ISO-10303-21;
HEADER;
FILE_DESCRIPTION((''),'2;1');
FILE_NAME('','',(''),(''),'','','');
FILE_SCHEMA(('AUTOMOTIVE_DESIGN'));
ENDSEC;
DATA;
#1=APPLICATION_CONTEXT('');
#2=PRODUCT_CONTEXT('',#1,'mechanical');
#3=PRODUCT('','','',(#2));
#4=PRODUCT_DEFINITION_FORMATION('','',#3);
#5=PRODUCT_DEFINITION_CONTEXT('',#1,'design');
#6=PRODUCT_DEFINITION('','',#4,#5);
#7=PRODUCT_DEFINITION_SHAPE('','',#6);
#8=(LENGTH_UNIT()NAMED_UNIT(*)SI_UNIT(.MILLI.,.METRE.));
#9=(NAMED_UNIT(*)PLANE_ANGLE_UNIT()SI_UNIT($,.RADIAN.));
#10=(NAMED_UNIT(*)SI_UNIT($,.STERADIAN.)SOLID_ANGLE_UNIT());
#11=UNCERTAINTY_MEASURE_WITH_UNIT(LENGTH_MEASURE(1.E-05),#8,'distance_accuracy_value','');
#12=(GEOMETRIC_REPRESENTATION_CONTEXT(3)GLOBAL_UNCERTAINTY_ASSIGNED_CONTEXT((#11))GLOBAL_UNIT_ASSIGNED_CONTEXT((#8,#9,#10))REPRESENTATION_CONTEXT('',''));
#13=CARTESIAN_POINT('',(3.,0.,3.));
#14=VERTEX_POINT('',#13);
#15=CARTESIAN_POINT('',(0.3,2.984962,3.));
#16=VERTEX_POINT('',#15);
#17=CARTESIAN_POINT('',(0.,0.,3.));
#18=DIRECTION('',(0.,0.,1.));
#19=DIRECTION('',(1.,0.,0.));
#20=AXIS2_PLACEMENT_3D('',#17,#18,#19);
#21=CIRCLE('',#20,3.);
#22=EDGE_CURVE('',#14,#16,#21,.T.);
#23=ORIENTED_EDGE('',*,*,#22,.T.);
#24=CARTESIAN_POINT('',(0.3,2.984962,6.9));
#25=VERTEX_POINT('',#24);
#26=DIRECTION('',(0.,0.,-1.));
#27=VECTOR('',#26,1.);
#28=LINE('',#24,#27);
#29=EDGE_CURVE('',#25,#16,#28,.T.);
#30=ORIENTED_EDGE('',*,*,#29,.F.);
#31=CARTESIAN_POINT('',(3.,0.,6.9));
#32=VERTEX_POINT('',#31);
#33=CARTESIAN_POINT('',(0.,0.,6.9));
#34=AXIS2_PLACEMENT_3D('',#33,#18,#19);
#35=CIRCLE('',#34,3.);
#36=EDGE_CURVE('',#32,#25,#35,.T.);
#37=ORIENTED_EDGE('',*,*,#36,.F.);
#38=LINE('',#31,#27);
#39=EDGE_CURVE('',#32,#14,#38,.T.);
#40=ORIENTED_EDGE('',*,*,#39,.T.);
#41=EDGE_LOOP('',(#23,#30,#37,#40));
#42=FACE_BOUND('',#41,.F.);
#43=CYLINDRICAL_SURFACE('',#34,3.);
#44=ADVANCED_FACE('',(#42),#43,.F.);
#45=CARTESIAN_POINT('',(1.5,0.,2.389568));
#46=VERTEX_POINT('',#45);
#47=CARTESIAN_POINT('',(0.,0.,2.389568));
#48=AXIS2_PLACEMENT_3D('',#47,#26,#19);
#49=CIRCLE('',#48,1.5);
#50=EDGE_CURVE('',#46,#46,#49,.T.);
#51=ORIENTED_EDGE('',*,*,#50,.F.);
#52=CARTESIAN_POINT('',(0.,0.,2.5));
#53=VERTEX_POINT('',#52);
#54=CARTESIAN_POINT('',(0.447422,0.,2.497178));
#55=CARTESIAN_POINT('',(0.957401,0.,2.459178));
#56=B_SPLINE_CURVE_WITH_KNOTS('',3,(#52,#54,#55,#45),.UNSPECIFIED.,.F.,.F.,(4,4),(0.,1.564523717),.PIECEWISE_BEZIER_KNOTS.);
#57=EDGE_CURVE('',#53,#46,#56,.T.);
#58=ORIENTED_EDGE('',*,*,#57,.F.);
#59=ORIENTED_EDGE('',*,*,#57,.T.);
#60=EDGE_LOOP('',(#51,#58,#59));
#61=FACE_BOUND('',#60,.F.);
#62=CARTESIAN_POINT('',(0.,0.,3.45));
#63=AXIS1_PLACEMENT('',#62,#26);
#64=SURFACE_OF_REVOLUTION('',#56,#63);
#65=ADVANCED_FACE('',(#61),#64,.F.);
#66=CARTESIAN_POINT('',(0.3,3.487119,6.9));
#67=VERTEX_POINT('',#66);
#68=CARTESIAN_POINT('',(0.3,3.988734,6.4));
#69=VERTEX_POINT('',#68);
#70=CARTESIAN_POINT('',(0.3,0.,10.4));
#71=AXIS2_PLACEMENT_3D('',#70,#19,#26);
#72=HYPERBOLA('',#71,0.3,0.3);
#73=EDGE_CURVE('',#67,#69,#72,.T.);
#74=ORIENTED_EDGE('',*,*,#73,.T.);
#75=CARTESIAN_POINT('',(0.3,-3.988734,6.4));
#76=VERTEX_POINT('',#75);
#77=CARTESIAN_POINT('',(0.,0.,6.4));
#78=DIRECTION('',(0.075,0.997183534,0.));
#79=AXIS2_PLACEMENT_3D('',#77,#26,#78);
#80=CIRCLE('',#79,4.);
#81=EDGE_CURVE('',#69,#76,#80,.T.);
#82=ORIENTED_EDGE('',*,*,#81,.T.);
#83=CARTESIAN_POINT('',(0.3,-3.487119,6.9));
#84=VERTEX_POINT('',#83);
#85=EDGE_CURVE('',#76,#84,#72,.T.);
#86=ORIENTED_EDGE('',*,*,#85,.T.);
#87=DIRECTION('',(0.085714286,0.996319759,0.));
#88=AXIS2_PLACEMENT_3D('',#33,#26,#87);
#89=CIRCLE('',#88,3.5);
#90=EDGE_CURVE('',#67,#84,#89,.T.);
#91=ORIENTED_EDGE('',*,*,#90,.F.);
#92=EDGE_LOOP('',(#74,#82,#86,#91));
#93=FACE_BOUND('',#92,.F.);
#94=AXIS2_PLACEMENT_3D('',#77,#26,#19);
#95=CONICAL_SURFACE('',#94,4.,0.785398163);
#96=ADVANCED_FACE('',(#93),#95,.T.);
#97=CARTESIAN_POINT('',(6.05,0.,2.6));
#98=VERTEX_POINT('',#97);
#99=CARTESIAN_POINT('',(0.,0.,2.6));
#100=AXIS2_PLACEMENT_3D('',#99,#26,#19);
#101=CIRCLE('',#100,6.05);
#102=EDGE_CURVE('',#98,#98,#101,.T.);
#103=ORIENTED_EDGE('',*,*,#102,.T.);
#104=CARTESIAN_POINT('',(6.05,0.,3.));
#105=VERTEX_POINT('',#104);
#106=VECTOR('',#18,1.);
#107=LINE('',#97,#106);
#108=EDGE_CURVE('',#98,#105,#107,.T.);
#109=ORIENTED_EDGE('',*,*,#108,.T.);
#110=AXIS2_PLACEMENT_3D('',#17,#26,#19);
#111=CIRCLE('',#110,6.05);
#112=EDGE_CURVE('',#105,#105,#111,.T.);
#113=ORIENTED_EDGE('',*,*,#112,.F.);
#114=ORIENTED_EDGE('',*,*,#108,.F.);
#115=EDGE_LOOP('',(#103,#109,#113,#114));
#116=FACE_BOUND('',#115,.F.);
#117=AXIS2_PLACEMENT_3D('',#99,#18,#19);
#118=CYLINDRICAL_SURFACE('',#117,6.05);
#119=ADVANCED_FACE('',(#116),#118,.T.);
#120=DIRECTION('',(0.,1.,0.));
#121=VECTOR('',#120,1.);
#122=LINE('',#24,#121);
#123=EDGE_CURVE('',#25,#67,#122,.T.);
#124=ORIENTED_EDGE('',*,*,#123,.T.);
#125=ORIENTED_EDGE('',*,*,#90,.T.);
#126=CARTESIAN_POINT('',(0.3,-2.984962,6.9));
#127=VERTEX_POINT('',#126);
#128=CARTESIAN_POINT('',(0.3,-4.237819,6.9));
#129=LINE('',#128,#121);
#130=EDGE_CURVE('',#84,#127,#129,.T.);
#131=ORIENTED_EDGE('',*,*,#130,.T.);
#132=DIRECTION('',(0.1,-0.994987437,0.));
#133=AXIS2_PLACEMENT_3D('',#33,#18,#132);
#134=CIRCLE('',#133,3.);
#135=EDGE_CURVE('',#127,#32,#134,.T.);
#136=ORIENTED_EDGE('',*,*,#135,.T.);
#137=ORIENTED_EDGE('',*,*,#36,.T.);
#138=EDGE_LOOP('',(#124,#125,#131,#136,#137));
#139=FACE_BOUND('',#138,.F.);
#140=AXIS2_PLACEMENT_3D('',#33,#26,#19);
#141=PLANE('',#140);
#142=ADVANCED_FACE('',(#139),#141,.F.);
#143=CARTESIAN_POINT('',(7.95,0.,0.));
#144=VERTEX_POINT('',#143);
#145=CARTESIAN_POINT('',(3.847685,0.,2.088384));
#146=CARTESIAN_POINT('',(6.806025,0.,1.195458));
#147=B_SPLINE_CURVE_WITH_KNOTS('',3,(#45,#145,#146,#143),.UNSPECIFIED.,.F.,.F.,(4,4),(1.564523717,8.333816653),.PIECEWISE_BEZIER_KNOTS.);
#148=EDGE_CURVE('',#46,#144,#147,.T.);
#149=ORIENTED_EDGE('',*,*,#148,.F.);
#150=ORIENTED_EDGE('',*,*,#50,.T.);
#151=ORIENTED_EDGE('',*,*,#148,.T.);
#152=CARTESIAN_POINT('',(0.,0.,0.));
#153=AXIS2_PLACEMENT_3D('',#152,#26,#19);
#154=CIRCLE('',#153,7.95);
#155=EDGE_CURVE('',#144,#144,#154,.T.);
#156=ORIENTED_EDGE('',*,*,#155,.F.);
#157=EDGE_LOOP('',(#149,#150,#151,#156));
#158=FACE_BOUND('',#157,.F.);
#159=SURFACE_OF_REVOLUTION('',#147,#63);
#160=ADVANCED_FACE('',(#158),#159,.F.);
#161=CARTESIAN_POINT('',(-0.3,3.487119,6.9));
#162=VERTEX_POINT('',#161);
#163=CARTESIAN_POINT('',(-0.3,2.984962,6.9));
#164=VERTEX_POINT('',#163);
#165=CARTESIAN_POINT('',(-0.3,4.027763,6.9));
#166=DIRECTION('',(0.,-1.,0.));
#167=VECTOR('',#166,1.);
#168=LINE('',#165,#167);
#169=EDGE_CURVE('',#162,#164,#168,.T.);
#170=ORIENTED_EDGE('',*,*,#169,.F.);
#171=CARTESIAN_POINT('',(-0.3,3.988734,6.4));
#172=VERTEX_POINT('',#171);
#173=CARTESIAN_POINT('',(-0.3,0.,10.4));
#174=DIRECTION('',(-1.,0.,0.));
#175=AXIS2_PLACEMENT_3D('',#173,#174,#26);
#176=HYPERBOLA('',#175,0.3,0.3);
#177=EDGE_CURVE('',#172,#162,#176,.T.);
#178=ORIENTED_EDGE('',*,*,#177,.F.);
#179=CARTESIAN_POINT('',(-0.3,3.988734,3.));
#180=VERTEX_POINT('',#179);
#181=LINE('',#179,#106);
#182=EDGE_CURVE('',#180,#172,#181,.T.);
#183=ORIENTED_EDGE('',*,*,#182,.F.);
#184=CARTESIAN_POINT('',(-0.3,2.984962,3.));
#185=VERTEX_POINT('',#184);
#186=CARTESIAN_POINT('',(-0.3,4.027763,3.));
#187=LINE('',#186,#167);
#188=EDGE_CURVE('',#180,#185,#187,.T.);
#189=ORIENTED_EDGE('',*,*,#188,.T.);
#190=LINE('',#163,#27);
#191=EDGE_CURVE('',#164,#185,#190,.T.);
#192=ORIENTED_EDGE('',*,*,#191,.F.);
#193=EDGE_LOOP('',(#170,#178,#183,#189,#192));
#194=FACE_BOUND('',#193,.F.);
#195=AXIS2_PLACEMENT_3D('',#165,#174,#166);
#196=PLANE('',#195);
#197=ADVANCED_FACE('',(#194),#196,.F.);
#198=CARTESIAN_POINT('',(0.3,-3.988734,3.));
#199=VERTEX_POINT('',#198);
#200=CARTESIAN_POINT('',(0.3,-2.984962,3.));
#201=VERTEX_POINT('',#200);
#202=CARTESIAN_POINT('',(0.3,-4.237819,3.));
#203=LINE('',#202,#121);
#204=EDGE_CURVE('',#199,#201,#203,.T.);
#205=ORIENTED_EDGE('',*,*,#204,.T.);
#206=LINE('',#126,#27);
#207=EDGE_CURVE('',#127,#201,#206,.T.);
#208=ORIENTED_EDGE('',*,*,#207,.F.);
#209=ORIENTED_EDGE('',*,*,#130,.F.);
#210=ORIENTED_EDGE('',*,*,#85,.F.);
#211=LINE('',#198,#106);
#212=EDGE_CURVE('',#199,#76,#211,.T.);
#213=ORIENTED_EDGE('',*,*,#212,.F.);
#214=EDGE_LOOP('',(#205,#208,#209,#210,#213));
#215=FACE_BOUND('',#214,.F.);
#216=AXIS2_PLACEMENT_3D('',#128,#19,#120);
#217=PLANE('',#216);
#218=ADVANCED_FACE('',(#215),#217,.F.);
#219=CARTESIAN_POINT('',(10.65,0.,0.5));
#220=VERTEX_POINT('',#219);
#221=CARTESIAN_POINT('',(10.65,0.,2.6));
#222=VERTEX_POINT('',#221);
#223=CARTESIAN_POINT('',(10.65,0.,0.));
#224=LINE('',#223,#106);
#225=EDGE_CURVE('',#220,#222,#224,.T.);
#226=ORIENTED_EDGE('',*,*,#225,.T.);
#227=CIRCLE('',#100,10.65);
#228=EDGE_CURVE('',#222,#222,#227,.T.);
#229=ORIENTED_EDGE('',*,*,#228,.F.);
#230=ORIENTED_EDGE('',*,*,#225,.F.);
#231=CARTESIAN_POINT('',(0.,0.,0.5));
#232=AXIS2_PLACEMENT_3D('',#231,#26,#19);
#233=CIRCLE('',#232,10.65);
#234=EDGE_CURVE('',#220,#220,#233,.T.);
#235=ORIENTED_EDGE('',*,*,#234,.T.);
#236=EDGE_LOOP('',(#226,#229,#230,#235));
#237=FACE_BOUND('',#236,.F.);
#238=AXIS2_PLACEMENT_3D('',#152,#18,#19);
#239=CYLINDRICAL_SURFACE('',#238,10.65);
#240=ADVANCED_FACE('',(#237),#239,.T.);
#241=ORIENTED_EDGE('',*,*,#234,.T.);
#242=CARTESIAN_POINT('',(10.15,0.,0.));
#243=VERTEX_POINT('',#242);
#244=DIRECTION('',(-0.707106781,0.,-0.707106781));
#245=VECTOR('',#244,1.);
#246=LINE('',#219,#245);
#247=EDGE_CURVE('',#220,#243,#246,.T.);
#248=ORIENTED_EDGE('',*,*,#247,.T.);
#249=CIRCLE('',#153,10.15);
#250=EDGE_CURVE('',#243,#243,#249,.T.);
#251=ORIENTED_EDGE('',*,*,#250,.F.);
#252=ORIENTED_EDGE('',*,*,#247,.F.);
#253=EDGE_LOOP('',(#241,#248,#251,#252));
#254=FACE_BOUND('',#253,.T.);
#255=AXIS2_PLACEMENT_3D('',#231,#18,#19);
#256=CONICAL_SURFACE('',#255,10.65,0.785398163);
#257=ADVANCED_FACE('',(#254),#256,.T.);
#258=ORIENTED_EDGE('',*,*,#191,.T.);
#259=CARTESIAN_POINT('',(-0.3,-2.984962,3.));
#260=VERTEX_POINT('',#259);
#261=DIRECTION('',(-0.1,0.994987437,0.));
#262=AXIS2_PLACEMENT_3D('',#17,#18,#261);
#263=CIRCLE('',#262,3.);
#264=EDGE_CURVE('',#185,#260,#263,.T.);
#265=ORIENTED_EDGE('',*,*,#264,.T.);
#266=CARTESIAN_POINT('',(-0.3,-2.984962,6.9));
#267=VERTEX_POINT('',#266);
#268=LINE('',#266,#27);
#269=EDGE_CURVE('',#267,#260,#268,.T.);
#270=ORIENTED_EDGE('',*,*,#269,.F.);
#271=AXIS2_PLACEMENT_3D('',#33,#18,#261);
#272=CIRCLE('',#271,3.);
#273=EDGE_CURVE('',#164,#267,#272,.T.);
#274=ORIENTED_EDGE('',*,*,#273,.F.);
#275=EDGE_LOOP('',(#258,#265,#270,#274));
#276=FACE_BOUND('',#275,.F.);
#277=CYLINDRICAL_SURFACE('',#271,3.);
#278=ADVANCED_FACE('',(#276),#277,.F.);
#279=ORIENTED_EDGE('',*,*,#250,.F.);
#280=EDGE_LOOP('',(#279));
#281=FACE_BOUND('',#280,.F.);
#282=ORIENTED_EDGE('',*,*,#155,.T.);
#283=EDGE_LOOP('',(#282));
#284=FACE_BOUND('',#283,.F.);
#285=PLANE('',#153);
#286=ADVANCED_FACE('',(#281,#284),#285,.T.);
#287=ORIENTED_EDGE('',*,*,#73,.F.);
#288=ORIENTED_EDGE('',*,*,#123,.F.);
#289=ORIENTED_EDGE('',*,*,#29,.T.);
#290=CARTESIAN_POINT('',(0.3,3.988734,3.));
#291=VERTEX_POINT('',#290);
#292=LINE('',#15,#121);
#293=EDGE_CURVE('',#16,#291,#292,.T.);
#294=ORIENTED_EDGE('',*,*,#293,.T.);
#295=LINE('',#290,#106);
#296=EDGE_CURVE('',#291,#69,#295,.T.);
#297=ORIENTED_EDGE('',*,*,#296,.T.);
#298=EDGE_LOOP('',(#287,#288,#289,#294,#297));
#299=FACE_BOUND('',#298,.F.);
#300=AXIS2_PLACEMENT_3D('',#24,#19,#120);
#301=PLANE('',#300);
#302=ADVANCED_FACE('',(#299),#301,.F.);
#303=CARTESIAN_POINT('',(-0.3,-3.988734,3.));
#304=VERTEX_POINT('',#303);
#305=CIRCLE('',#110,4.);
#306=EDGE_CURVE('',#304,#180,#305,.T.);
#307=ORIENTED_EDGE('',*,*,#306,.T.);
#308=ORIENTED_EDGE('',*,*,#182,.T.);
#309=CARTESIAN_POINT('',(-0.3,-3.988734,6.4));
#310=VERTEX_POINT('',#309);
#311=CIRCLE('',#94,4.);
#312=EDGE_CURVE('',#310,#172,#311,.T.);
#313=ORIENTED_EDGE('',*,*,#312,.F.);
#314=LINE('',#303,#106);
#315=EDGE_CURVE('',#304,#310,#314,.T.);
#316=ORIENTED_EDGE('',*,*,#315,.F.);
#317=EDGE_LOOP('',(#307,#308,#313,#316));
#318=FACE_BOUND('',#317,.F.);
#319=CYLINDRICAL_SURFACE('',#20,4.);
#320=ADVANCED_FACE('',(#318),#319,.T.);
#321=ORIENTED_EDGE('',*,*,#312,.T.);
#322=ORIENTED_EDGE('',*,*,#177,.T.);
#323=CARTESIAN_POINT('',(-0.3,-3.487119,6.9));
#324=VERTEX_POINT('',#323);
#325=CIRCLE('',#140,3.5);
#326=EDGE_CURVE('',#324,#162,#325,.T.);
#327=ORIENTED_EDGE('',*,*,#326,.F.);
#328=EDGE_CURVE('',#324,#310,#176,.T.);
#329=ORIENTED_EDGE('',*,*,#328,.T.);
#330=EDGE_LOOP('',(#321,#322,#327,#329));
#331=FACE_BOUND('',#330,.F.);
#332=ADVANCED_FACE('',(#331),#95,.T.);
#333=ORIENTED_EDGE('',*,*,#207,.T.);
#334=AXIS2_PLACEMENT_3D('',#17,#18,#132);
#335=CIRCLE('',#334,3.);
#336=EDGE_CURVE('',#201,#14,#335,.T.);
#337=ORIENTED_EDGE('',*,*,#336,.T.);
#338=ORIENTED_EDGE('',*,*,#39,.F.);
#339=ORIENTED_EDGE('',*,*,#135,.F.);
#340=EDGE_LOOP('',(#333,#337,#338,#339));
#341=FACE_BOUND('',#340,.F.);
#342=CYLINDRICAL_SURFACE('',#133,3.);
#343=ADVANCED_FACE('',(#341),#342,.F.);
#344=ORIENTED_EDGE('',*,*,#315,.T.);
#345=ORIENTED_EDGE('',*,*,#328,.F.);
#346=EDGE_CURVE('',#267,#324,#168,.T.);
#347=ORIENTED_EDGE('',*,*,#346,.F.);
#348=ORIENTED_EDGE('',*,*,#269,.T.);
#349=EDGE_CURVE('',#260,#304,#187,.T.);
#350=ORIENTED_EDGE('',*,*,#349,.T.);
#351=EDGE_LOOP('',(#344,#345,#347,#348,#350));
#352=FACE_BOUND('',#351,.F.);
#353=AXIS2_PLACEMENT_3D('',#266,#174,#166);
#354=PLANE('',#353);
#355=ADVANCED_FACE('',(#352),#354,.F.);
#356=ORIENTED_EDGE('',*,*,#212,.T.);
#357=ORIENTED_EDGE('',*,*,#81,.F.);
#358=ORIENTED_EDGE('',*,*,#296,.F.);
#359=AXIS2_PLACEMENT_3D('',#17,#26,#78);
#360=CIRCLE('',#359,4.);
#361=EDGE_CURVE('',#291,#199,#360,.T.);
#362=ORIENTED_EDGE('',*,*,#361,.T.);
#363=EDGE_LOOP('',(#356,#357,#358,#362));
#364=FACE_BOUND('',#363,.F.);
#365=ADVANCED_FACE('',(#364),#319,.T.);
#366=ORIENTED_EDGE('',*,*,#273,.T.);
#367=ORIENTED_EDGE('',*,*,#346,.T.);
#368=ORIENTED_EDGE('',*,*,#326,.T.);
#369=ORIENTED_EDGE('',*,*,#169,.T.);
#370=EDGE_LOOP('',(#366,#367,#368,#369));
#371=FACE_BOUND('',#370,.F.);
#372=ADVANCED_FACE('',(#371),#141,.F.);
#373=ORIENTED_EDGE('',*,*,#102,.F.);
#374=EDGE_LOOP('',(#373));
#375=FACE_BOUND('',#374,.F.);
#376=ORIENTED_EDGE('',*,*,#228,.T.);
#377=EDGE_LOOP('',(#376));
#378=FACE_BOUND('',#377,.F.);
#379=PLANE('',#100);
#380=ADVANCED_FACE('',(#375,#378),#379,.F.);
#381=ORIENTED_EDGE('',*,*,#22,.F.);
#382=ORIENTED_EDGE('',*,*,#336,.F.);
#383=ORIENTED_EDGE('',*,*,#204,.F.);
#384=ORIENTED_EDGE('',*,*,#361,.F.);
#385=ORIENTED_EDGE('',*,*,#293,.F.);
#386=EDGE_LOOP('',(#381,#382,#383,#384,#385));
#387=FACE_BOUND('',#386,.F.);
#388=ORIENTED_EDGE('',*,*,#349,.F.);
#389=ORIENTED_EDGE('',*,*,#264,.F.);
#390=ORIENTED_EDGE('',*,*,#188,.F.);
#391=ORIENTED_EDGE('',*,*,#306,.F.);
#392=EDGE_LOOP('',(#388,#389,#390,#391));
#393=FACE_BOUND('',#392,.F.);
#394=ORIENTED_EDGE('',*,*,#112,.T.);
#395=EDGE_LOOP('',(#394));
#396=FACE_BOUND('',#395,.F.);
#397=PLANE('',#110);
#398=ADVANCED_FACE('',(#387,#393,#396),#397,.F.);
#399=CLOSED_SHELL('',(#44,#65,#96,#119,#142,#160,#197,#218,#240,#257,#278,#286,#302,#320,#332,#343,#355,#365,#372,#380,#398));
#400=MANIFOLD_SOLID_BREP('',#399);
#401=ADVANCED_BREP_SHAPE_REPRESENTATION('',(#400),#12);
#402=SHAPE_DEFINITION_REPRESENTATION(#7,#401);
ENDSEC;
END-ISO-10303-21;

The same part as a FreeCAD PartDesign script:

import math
import FreeCAD as App
import Part
import Sketcher


def edges_at(feature, points):
    """Names of the edges that pass closest to the given points."""
    edges = feature.Shape.Edges
    near = lambda p: min(range(len(edges)), key=lambda i: edges[i].distToShape(Part.Vertex(*p))[0])
    return sorted({f"Edge{near(p) + 1}" for p in points})

doc = App.newDocument("Part")
body = doc.addObject("PartDesign::Body", "Body")

# Sketch on XZ plane
sketch1 = body.newObject("Sketcher::SketchObject", "Sketch")
sketch1.AttachmentSupport = (doc.getObject("XZ_Plane"), [""])
sketch1.MapMode = "FlatFace"
sketch1.addGeometry([
    Part.BSplineCurve([App.Vector(1.5, 2.389568, 0), App.Vector(3.847685, 2.088384, 0), App.Vector(6.806025, 1.195458, 0), App.Vector(7.95, 0, 0)], [4, 4], [1.564523717, 8.333816653], False, 3, [1, 1, 1, 1], False),  # 0
    Part.LineSegment(App.Vector(7.95, 0, 0), App.Vector(10.65, 0, 0)),  # 1
    Part.LineSegment(App.Vector(10.65, 0, 0), App.Vector(10.65, 2.6, 0)),  # 2
    Part.LineSegment(App.Vector(10.65, 2.6, 0), App.Vector(6.05, 2.6, 0)),  # 3
    Part.LineSegment(App.Vector(6.05, 2.6, 0), App.Vector(6.05, 3, 0)),  # 4
    Part.LineSegment(App.Vector(6.05, 3, 0), App.Vector(4, 3, 0)),  # 5
    Part.LineSegment(App.Vector(4, 3, 0), App.Vector(4, 6.9, 0)),  # 6
    Part.LineSegment(App.Vector(4, 6.9, 0), App.Vector(0, 6.9, 0)),  # 7
    Part.LineSegment(App.Vector(0, 6.9, 0), App.Vector(0, 2.5, 0)),  # 8
    Part.BSplineCurve([App.Vector(0, 2.5, 0), App.Vector(0.447422, 2.497178, 0), App.Vector(0.957401, 2.459178, 0), App.Vector(1.5, 2.389568, 0)], [4, 4], [0, 1.564523717], False, 3, [1, 1, 1, 1], False),  # 9
], False)
sketch1.addConstraint([
    Sketcher.Constraint("Block", 0),
    Sketcher.Constraint("Block", 9),
    Sketcher.Constraint("Coincident", 0, 2, 1, 1),
    Sketcher.Constraint("Coincident", 1, 2, 2, 1),
    Sketcher.Constraint("Coincident", 2, 2, 3, 1),
    Sketcher.Constraint("Coincident", 3, 2, 4, 1),
    Sketcher.Constraint("Coincident", 4, 2, 5, 1),
    Sketcher.Constraint("Coincident", 5, 2, 6, 1),
    Sketcher.Constraint("Coincident", 6, 2, 7, 1),
    Sketcher.Constraint("Coincident", 7, 2, 8, 1),
    Sketcher.Constraint("Coincident", 8, 2, 9, 1),
    Sketcher.Constraint("Horizontal", 1),
    Sketcher.Constraint("Vertical", 2),
    Sketcher.Constraint("Horizontal", 3),
    Sketcher.Constraint("Vertical", 4),
    Sketcher.Constraint("Horizontal", 5),
    Sketcher.Constraint("Vertical", 6),
    Sketcher.Constraint("Horizontal", 7),
    Sketcher.Constraint("Vertical", 8),
    Sketcher.Constraint("DistanceX", 7, 2, 7, 1, 4.0),
    Sketcher.Constraint("DistanceX", 1, 1, 1, 2, 2.7),
    Sketcher.Constraint("DistanceX", 3, 2, 3, 1, 4.6),
    Sketcher.Constraint("DistanceY", 2, 1, 2, 2, 2.6),
    Sketcher.Constraint("DistanceY", 4, 1, 4, 2, 0.4),
    Sketcher.Constraint("DistanceY", 6, 1, 6, 2, 3.9),
])
revolution = body.newObject("PartDesign::Revolution", "Revolution")
revolution.Profile = sketch1
revolution.ReferenceAxis = (sketch1, ["V_Axis"])
revolution.Angle = 360
doc.recompute()

chamfer = body.newObject("PartDesign::Chamfer", "Chamfer")
chamfer.Base = (revolution, edges_at(revolution, [(-4, 0, 6.9)]))
chamfer.Size = 0.5
doc.recompute()

chamfer2 = body.newObject("PartDesign::Chamfer", "Chamfer001")
chamfer2.Base = (chamfer, edges_at(chamfer, [(-10.65, 0, 0)]))
chamfer2.Size = 0.5

# Sketch on XY plane
sketch2 = body.newObject("Sketcher::SketchObject", "Sketch001")
sketch2.AttachmentSupport = (doc.getObject("XY_Plane"), [""])
sketch2.MapMode = "FlatFace"
sketch2.AttachmentOffset = App.Placement(App.Vector(0, 0, 6.9), App.Rotation())
sketch2.addGeometry([
    Part.ArcOfCircle(Part.Circle(App.Vector(0, 0, 0), App.Vector(0, 0, 1), 3), math.radians(-84), math.radians(0)),  # 0
    Part.ArcOfCircle(Part.Circle(App.Vector(0, 0, 0), App.Vector(0, 0, 1), 3), math.radians(0), math.radians(84)),  # 1
    Part.LineSegment(App.Vector(0.3, 3, 0), App.Vector(0.3, 4, 0)),  # 2
    Part.LineSegment(App.Vector(0.3, 4, 0), App.Vector(-0.3, 4, 0)),  # 3
    Part.LineSegment(App.Vector(-0.3, 4, 0), App.Vector(-0.3, 3, 0)),  # 4
    Part.ArcOfCircle(Part.Circle(App.Vector(0, 0, 0), App.Vector(0, 0, 1), 3), math.radians(96), math.radians(264)),  # 5
    Part.LineSegment(App.Vector(-0.3, -3, 0), App.Vector(-0.3, -4.2, 0)),  # 6
    Part.LineSegment(App.Vector(-0.3, -4.2, 0), App.Vector(0.3, -4.2, 0)),  # 7
    Part.LineSegment(App.Vector(0.3, -4.2, 0), App.Vector(0.3, -3, 0)),  # 8
], False)
sketch2.addConstraint([
    Sketcher.Constraint("Tangent", 0, 2, 1, 1),
    Sketcher.Constraint("Coincident", 1, 2, 2, 1),
    Sketcher.Constraint("Coincident", 2, 2, 3, 1),
    Sketcher.Constraint("Coincident", 3, 2, 4, 1),
    Sketcher.Constraint("Coincident", 4, 2, 5, 1),
    Sketcher.Constraint("Coincident", 5, 2, 6, 1),
    Sketcher.Constraint("Coincident", 6, 2, 7, 1),
    Sketcher.Constraint("Coincident", 7, 2, 8, 1),
    Sketcher.Constraint("Coincident", 8, 2, 0, 1),
    Sketcher.Constraint("Vertical", 2),
    Sketcher.Constraint("Horizontal", 3),
    Sketcher.Constraint("Vertical", 4),
    Sketcher.Constraint("Vertical", 6),
    Sketcher.Constraint("Horizontal", 7),
    Sketcher.Constraint("Vertical", 8),
    Sketcher.Constraint("Coincident", 0, 3, -1, 1),
    Sketcher.Constraint("Coincident", 5, 3, -1, 1),
    Sketcher.Constraint("Equal", 0, 1),
    Sketcher.Constraint("Equal", 1, 5),
    Sketcher.Constraint("PointOnObject", 0, 2, -1),
    Sketcher.Constraint("Horizontal", 1, 2, 4, 2),
    Sketcher.Constraint("Horizontal", 5, 2, 8, 2),
    Sketcher.Constraint("Vertical", 4, 2, 5, 2),
    Sketcher.Constraint("Radius", 0, 3.0),
    Sketcher.Constraint("DistanceX", 3, 2, 3, 1, 0.6),
    Sketcher.Constraint("DistanceY", 2, 1, 2, 2, 1.042801),
    Sketcher.Constraint("DistanceY", 6, 2, 6, 1, 1.252857),
])
pocket1 = body.newObject("PartDesign::Pocket", "Pocket")
pocket1.Profile = sketch2
pocket1.Length = 3.9

doc.recompute()
